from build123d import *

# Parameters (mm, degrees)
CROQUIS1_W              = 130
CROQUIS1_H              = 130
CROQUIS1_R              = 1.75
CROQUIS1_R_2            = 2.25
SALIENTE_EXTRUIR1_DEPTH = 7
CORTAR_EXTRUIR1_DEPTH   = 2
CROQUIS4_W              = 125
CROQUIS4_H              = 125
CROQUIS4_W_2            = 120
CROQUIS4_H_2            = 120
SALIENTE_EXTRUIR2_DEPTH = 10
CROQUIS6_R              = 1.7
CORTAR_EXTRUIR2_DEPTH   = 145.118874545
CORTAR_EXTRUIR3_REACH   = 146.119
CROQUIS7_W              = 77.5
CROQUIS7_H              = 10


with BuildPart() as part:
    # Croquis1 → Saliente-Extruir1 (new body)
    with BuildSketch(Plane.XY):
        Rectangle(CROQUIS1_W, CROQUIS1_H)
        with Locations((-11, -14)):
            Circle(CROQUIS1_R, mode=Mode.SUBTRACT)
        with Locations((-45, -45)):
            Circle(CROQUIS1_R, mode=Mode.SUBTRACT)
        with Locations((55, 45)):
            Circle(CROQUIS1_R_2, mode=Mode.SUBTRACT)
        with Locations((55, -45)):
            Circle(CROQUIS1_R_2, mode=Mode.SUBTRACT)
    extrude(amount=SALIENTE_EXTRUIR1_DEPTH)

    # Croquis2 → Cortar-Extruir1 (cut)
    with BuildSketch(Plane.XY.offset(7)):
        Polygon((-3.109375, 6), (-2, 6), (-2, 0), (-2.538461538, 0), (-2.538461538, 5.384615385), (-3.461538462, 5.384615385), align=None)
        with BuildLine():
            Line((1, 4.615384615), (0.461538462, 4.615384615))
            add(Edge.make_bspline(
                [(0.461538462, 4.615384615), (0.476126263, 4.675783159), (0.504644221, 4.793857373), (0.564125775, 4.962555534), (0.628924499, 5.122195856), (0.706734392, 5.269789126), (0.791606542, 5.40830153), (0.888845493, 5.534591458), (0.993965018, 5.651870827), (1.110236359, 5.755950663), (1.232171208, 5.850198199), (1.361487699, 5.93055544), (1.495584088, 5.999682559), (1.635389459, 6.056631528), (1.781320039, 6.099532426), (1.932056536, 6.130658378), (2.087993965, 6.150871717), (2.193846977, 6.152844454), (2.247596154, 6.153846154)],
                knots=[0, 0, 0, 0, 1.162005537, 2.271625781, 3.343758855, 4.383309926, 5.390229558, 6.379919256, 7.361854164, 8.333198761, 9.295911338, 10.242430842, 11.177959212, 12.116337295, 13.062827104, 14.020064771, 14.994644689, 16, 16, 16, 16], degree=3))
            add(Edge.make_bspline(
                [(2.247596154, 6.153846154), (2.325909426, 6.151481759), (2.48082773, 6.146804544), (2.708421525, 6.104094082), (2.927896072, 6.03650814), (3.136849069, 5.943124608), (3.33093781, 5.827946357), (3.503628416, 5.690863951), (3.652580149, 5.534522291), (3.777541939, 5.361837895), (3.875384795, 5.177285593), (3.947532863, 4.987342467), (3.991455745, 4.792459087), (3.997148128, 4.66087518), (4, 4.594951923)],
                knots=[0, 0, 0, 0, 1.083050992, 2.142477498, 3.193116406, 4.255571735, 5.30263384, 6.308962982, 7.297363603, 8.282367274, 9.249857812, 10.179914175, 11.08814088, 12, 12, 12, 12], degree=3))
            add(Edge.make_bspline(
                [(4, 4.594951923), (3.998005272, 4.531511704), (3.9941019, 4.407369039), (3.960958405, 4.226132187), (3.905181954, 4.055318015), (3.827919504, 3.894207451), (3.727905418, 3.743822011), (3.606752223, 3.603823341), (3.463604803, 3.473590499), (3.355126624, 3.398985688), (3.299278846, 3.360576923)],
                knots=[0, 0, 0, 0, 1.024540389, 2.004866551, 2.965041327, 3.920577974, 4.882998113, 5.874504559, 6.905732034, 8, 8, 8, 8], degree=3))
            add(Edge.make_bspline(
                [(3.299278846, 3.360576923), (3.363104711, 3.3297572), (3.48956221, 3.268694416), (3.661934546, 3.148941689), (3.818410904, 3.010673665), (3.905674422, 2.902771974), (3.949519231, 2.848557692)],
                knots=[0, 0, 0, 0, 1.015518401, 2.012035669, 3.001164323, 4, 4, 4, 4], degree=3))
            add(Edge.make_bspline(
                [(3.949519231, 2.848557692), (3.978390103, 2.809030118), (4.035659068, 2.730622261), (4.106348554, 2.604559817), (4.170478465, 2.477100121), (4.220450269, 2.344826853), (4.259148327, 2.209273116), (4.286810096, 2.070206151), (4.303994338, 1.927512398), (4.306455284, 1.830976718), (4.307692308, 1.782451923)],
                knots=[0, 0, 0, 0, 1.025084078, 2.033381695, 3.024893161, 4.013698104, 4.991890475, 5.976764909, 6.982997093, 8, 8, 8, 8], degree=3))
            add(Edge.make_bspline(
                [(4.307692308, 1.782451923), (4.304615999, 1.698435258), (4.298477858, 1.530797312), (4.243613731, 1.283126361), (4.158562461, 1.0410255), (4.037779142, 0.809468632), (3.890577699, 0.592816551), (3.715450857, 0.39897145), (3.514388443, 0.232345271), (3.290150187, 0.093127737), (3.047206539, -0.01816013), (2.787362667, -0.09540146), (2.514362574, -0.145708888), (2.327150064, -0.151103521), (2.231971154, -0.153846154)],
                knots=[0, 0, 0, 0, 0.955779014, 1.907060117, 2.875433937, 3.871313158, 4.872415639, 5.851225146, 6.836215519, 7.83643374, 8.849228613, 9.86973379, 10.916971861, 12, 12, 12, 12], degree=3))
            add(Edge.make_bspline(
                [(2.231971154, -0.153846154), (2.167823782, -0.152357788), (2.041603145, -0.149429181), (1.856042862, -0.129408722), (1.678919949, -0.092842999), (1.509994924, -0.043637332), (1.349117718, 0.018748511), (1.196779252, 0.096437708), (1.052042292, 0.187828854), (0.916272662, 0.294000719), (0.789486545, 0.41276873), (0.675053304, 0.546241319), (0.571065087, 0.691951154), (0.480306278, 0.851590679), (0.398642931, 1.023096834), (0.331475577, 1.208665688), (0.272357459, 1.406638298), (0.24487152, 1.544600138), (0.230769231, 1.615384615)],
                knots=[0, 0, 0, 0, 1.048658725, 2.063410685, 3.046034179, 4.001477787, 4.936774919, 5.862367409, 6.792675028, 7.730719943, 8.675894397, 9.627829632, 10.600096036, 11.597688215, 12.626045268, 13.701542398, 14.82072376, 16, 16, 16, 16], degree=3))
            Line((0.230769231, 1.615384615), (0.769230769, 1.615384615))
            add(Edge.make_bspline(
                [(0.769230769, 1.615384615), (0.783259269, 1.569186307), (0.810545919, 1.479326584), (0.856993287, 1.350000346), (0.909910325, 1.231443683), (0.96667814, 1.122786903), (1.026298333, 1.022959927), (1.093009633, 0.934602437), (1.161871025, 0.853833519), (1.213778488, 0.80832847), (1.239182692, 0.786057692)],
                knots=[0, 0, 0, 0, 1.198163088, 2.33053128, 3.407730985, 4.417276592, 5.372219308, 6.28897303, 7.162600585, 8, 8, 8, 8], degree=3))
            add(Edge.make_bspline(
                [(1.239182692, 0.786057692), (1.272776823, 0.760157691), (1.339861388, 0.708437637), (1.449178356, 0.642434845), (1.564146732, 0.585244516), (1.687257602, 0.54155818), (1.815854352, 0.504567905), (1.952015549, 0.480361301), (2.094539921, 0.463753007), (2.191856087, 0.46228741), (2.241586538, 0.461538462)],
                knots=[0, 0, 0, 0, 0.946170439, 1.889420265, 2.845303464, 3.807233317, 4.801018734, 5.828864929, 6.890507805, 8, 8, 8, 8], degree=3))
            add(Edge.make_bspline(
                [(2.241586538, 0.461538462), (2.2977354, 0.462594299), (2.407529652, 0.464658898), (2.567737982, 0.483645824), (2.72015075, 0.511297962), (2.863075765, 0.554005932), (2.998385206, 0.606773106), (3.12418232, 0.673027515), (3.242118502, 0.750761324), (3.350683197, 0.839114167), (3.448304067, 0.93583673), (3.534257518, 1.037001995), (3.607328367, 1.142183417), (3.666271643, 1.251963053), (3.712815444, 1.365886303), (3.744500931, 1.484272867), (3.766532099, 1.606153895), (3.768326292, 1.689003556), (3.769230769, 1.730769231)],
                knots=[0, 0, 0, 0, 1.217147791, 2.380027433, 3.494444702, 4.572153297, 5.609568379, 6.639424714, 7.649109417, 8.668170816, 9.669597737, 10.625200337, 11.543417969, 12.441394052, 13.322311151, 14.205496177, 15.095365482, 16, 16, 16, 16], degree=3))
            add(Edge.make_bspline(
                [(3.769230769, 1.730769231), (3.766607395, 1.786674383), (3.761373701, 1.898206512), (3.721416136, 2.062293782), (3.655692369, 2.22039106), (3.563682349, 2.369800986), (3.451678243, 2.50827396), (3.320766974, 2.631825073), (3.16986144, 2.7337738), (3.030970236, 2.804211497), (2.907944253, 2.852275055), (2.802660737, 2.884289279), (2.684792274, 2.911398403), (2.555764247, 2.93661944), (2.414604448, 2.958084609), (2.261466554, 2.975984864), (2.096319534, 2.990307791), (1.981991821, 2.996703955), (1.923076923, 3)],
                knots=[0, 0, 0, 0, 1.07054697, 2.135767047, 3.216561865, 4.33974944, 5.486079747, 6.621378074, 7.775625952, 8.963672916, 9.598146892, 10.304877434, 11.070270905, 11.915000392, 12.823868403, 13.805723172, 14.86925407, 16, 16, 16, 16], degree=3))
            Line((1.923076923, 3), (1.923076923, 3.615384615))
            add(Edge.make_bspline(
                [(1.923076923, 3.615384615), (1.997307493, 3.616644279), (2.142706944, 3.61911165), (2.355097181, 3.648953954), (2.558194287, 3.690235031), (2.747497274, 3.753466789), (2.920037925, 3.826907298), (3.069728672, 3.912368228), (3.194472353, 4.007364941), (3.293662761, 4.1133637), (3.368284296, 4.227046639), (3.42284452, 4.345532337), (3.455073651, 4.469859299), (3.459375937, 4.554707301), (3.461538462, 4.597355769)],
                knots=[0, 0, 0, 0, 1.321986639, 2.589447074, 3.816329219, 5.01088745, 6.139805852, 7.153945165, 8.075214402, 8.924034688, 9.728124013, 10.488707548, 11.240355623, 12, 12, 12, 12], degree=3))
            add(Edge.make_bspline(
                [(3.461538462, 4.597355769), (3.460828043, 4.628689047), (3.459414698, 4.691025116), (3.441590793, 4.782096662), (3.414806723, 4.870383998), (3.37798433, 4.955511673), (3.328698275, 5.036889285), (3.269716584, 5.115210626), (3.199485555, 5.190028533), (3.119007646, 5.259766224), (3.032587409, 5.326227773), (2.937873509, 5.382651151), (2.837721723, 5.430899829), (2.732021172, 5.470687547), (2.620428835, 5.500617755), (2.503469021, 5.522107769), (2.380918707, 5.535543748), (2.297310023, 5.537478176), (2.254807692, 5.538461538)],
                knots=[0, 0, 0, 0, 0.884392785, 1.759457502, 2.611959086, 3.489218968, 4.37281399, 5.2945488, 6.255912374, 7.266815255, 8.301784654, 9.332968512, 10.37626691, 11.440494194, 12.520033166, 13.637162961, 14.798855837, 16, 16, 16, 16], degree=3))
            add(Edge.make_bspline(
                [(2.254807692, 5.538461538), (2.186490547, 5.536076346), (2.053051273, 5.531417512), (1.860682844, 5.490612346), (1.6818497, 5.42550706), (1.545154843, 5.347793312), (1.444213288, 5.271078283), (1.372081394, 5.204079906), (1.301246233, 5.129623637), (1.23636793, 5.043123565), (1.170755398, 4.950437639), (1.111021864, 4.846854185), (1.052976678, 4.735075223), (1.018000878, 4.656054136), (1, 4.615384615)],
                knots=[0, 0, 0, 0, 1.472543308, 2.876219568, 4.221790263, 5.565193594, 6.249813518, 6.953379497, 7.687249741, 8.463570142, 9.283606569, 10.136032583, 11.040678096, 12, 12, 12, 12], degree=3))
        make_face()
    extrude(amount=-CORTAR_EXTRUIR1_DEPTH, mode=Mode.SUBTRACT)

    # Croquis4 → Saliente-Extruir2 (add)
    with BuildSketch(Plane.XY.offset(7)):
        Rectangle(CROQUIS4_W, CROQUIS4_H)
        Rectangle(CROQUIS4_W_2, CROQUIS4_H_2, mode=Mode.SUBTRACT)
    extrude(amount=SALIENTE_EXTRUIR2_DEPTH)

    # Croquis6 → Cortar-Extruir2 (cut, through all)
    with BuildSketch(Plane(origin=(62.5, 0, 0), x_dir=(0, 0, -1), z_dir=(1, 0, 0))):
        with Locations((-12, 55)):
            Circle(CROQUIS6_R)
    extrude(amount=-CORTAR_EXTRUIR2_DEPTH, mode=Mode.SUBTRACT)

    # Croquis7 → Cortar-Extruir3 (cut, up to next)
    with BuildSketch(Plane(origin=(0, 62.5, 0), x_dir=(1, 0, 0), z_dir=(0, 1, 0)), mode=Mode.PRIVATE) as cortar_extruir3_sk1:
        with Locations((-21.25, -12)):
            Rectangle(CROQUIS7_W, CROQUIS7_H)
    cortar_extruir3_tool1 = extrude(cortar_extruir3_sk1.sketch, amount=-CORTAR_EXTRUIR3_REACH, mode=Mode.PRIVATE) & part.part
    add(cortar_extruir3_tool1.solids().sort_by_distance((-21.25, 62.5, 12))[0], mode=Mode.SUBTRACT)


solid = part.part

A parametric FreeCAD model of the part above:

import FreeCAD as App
import Part
import Sketcher
from FreeCAD import Vector
Q = App.Units.Quantity

doc = App.newDocument("Part")
body = doc.addObject("PartDesign::Body", "Body")

# Sketch on XY plane
sketch1 = body.newObject("Sketcher::SketchObject", "Sketch")
sketch1.AttachmentSupport = (doc.getObject("XY_Plane"), [""])
sketch1.MapMode = "FlatFace"
sketch1.addGeometry([
    Part.LineSegment(Vector(-65, 65, 0), Vector(-65, -65, 0)),  # 0
    Part.LineSegment(Vector(-65, -65, 0), Vector(65, -65, 0)),  # 1
    Part.LineSegment(Vector(65, -65, 0), Vector(65, 65, 0)),  # 2
    Part.LineSegment(Vector(65, 65, 0), Vector(-65, 65, 0)),  # 3
    Part.Circle(Vector(-45, -45, 0), Vector(0, 0, 1), 1.8),  # 4
    Part.Circle(Vector(-11, -14, 0), Vector(0, 0, 1), 1.8),  # 5
    Part.Circle(Vector(55, -45, 0), Vector(0, 0, 1), 2.2),  # 6
    Part.Circle(Vector(55, 45, 0), Vector(0, 0, 1), 2.2),  # 7
], False)
sketch1.addConstraint([
    Sketcher.Constraint("Coincident", 0, 2, 1, 1),
    Sketcher.Constraint("Coincident", 1, 2, 2, 1),
    Sketcher.Constraint("Coincident", 2, 2, 3, 1),
    Sketcher.Constraint("Coincident", 3, 2, 0, 1),
    Sketcher.Constraint("Vertical", 0),
    Sketcher.Constraint("Horizontal", 1),
    Sketcher.Constraint("Vertical", 2),
    Sketcher.Constraint("Horizontal", 3),
    Sketcher.Constraint("Equal", 4, 5),
    Sketcher.Constraint("Equal", 6, 7),
    Sketcher.Constraint("Symmetric", 0, 2, 2, 2, -1, 1),
    Sketcher.Constraint("Symmetric", 6, 3, 7, 3, -1),
    Sketcher.Constraint("Horizontal", 4, 3, 6, 3),
    Sketcher.Constraint("Equal", 3, 0),
    Sketcher.Constraint("Diameter", 4, Q("3.5 mm")),
    Sketcher.Constraint("Diameter", 6, Q("4.5 mm")),
    Sketcher.Constraint("DistanceX", 1, 1, 1, 2, Q("130 mm")),
    Sketcher.Constraint("DistanceX", 4, 3, -1, 1, Q("45 mm")),
    Sketcher.Constraint("DistanceY", 4, 3, -1, 1, Q("45 mm")),
    Sketcher.Constraint("DistanceX", 5, 3, -1, 1, Q("11 mm")),
    Sketcher.Constraint("DistanceY", 5, 3, -1, 1, Q("14 mm")),
    Sketcher.Constraint("DistanceX", -1, 1, 6, 3, Q("55 mm")),
])
pad1 = body.newObject("PartDesign::Pad", "Pad")
pad1.Profile = sketch1
pad1.Length = 7

# Sketch on XY plane
sketch2 = body.newObject("Sketcher::SketchObject", "Sketch001")
sketch2.AttachmentSupport = (doc.getObject("XY_Plane"), [""])
sketch2.MapMode = "FlatFace"
sketch2.AttachmentOffset = App.Placement(Vector(0, 0, 7), App.Rotation())
sketch2.addGeometry([
    Part.LineSegment(Vector(-2, 6, 0), Vector(-3.109375, 6, 0)),  # 0
    Part.LineSegment(Vector(-3.109375, 6, 0), Vector(-3.461538, 5.384615, 0)),  # 1
    Part.LineSegment(Vector(-3.461538, 5.384615, 0), Vector(-2.538462, 5.384615, 0)),  # 2
    Part.LineSegment(Vector(-2.538462, 5.384615, 0), Vector(-2.538462, 0, 0)),  # 3
    Part.LineSegment(Vector(-2.538462, 0, 0), Vector(-2, 0, 0)),  # 4
    Part.LineSegment(Vector(-2, 0, 0), Vector(-2, 6, 0)),  # 5
    Part.LineSegment(Vector(0.461538, 4.615385, 0), Vector(1, 4.615385, 0)),  # 6
    Part.BSplineCurve([Vector(2.254808, 5.538462, 0), Vector(2.186491, 5.536076, 0), Vector(2.053051, 5.531418, 0), Vector(1.860683, 5.490612, 0), Vector(1.68185, 5.425507, 0), Vector(1.545155, 5.347793, 0), Vector(1.444213, 5.271078, 0), Vector(1.372081, 5.20408, 0), Vector(1.301246, 5.129624, 0), Vector(1.236368, 5.043124, 0), Vector(1.170755, 4.950438, 0), Vector(1.111022, 4.846854, 0), Vector(1.052977, 4.735075, 0), Vector(1.018001, 4.656054, 0), Vector(1, 4.615385, 0)], [4, 1, 1, 1, 1, 1, 1, 1, 1, 1, 1, 1, 4], [0, 1.472543308, 2.876219568, 4.221790263, 5.565193594, 6.249813518, 6.953379497, 7.687249741, 8.463570142, 9.283606569, 10.136032583, 11.040678096, 12], False, 3, [1, 1, 1, 1, 1, 1, 1, 1, 1, 1, 1, 1, 1, 1, 1], False),  # 7
    Part.BSplineCurve([Vector(3.461538, 4.597356, 0), Vector(3.460828, 4.628689, 0), Vector(3.459415, 4.691025, 0), Vector(3.441591, 4.782097, 0), Vector(3.414807, 4.870384, 0), Vector(3.377984, 4.955512, 0), Vector(3.328698, 5.036889, 0), Vector(3.269717, 5.115211, 0), Vector(3.199486, 5.190029, 0), Vector(3.119008, 5.259766, 0), Vector(3.032587, 5.326228, 0), Vector(2.937874, 5.382651, 0), Vector(2.837722, 5.4309, 0), Vector(2.732021, 5.470688, 0), Vector(2.620429, 5.500618, 0), Vector(2.503469, 5.522108, 0), Vector(2.380919, 5.535544, 0), Vector(2.29731, 5.537478, 0), Vector(2.254808, 5.538462, 0)], [4, 1, 1, 1, 1, 1, 1, 1, 1, 1, 1, 1, 1, 1, 1, 1, 4], [0, 0.884392785, 1.759457502, 2.611959086, 3.489218968, 4.37281399, 5.2945488, 6.255912374, 7.266815255, 8.301784654, 9.332968512, 10.37626691, 11.440494194, 12.520033166, 13.637162961, 14.798855837, 16], False, 3, [1, 1, 1, 1, 1, 1, 1, 1, 1, 1, 1, 1, 1, 1, 1, 1, 1, 1, 1], False),  # 8
    Part.BSplineCurve([Vector(1.923077, 3.615385, 0), Vector(1.997307, 3.616644, 0), Vector(2.142707, 3.619112, 0), Vector(2.355097, 3.648954, 0), Vector(2.558194, 3.690235, 0), Vector(2.747497, 3.753467, 0), Vector(2.920038, 3.826907, 0), Vector(3.069729, 3.912368, 0), Vector(3.194472, 4.007365, 0), Vector(3.293663, 4.113364, 0), Vector(3.368284, 4.227047, 0), Vector(3.422845, 4.345532, 0), Vector(3.455074, 4.469859, 0), Vector(3.459376, 4.554707, 0), Vector(3.461538, 4.597356, 0)], [4, 1, 1, 1, 1, 1, 1, 1, 1, 1, 1, 1, 4], [0, 1.321986639, 2.589447074, 3.816329219, 5.01088745, 6.139805852, 7.153945165, 8.075214402, 8.924034688, 9.728124013, 10.488707548, 11.240355623, 12], False, 3, [1, 1, 1, 1, 1, 1, 1, 1, 1, 1, 1, 1, 1, 1, 1], False),  # 9
    Part.LineSegment(Vector(1.923077, 3.615385, 0), Vector(1.923077, 3, 0)),  # 10
    Part.BSplineCurve([Vector(3.769231, 1.730769, 0), Vector(3.766607, 1.786674, 0), Vector(3.761374, 1.898207, 0), Vector(3.721416, 2.062294, 0), Vector(3.655692, 2.220391, 0), Vector(3.563682, 2.369801, 0), Vector(3.451678, 2.508274, 0), Vector(3.320767, 2.631825, 0), Vector(3.169861, 2.733774, 0), Vector(3.03097, 2.804211, 0), Vector(2.907944, 2.852275, 0), Vector(2.802661, 2.884289, 0), Vector(2.684792, 2.911398, 0), Vector(2.555764, 2.936619, 0), Vector(2.414604, 2.958085, 0), Vector(2.261467, 2.975985, 0), Vector(2.09632, 2.990308, 0), Vector(1.981992, 2.996704, 0), Vector(1.923077, 3, 0)], [4, 1, 1, 1, 1, 1, 1, 1, 1, 1, 1, 1, 1, 1, 1, 1, 4], [0, 1.07054697, 2.135767047, 3.216561865, 4.33974944, 5.486079747, 6.621378074, 7.775625952, 8.963672916, 9.598146892, 10.304877434, 11.070270905, 11.915000392, 12.823868403, 13.805723172, 14.86925407, 16], False, 3, [1, 1, 1, 1, 1, 1, 1, 1, 1, 1, 1, 1, 1, 1, 1, 1, 1, 1, 1], False),  # 11
    Part.BSplineCurve([Vector(2.241587, 0.461538, 0), Vector(2.297735, 0.462594, 0), Vector(2.40753, 0.464659, 0), Vector(2.567738, 0.483646, 0), Vector(2.720151, 0.511298, 0), Vector(2.863076, 0.554006, 0), Vector(2.998385, 0.606773, 0), Vector(3.124182, 0.673028, 0), Vector(3.242119, 0.750761, 0), Vector(3.350683, 0.839114, 0), Vector(3.448304, 0.935837, 0), Vector(3.534258, 1.037002, 0), Vector(3.607328, 1.142183, 0), Vector(3.666272, 1.251963, 0), Vector(3.712815, 1.365886, 0), Vector(3.744501, 1.484273, 0), Vector(3.766532, 1.606154, 0), Vector(3.768326, 1.689004, 0), Vector(3.769231, 1.730769, 0)], [4, 1, 1, 1, 1, 1, 1, 1, 1, 1, 1, 1, 1, 1, 1, 1, 4], [0, 1.217147791, 2.380027433, 3.494444702, 4.572153297, 5.609568379, 6.639424714, 7.649109417, 8.668170816, 9.669597737, 10.625200337, 11.543417969, 12.441394052, 13.322311151, 14.205496177, 15.095365482, 16], False, 3, [1, 1, 1, 1, 1, 1, 1, 1, 1, 1, 1, 1, 1, 1, 1, 1, 1, 1, 1], False),  # 12
    Part.BSplineCurve([Vector(1.239183, 0.786058, 0), Vector(1.272777, 0.760158, 0), Vector(1.339861, 0.708438, 0), Vector(1.449178, 0.642435, 0), Vector(1.564147, 0.585245, 0), Vector(1.687258, 0.541558, 0), Vector(1.815854, 0.504568, 0), Vector(1.952016, 0.480361, 0), Vector(2.09454, 0.463753, 0), Vector(2.191856, 0.462287, 0), Vector(2.241587, 0.461538, 0)], [4, 1, 1, 1, 1, 1, 1, 1, 4], [0, 0.946170439, 1.889420265, 2.845303464, 3.807233317, 4.801018734, 5.828864929, 6.890507805, 8], False, 3, [1, 1, 1, 1, 1, 1, 1, 1, 1, 1, 1], False),  # 13
    Part.BSplineCurve([Vector(0.769231, 1.615385, 0), Vector(0.783259, 1.569186, 0), Vector(0.810546, 1.479327, 0), Vector(0.856993, 1.35, 0), Vector(0.90991, 1.231444, 0), Vector(0.966678, 1.122787, 0), Vector(1.026298, 1.02296, 0), Vector(1.09301, 0.934602, 0), Vector(1.161871, 0.853834, 0), Vector(1.213778, 0.808328, 0), Vector(1.239183, 0.786058, 0)], [4, 1, 1, 1, 1, 1, 1, 1, 4], [0, 1.198163088, 2.33053128, 3.407730985, 4.417276592, 5.372219308, 6.28897303, 7.162600585, 8], False, 3, [1, 1, 1, 1, 1, 1, 1, 1, 1, 1, 1], False),  # 14
    Part.LineSegment(Vector(0.769231, 1.615385, 0), Vector(0.230769, 1.615385, 0)),  # 15
    Part.BSplineCurve([Vector(2.231971, -0.153846, 0), Vector(2.167824, -0.152358, 0), Vector(2.041603, -0.149429, 0), Vector(1.856043, -0.129409, 0), Vector(1.67892, -0.092843, 0), Vector(1.509995, -0.043637, 0), Vector(1.349118, 0.018749, 0), Vector(1.196779, 0.096438, 0), Vector(1.052042, 0.187829, 0), Vector(0.916273, 0.294001, 0), Vector(0.789487, 0.412769, 0), Vector(0.675053, 0.546241, 0), Vector(0.571065, 0.691951, 0), Vector(0.480306, 0.851591, 0), Vector(0.398643, 1.023097, 0), Vector(0.331476, 1.208666, 0), Vector(0.272357, 1.406638, 0), Vector(0.244872, 1.5446, 0), Vector(0.230769, 1.615385, 0)], [4, 1, 1, 1, 1, 1, 1, 1, 1, 1, 1, 1, 1, 1, 1, 1, 4], [0, 1.048658725, 2.063410685, 3.046034179, 4.001477787, 4.936774919, 5.862367409, 6.792675028, 7.730719943, 8.675894397, 9.627829632, 10.600096036, 11.597688215, 12.626045268, 13.701542398, 14.82072376, 16], False, 3, [1, 1, 1, 1, 1, 1, 1, 1, 1, 1, 1, 1, 1, 1, 1, 1, 1, 1, 1], False),  # 16
    Part.BSplineCurve([Vector(4.307692, 1.782452, 0), Vector(4.304616, 1.698435, 0), Vector(4.298478, 1.530797, 0), Vector(4.243614, 1.283126, 0), Vector(4.158562, 1.041025, 0), Vector(4.037779, 0.809469, 0), Vector(3.890578, 0.592817, 0), Vector(3.715451, 0.398971, 0), Vector(3.514388, 0.232345, 0), Vector(3.29015, 0.093128, 0), Vector(3.047207, -0.01816, 0), Vector(2.787363, -0.095401, 0), Vector(2.514363, -0.145709, 0), Vector(2.32715, -0.151104, 0), Vector(2.231971, -0.153846, 0)], [4, 1, 1, 1, 1, 1, 1, 1, 1, 1, 1, 1, 4], [0, 0.955779014, 1.907060117, 2.875433937, 3.871313158, 4.872415639, 5.851225146, 6.836215519, 7.83643374, 8.849228613, 9.86973379, 10.916971861, 12], False, 3, [1, 1, 1, 1, 1, 1, 1, 1, 1, 1, 1, 1, 1, 1, 1], False),  # 17
    Part.BSplineCurve([Vector(3.949519, 2.848558, 0), Vector(3.97839, 2.80903, 0), Vector(4.035659, 2.730622, 0), Vector(4.106349, 2.60456, 0), Vector(4.170478, 2.4771, 0), Vector(4.22045, 2.344827, 0), Vector(4.259148, 2.209273, 0), Vector(4.28681, 2.070206, 0), Vector(4.303994, 1.927512, 0), Vector(4.306455, 1.830977, 0), Vector(4.307692, 1.782452, 0)], [4, 1, 1, 1, 1, 1, 1, 1, 4], [0, 1.025084078, 2.033381695, 3.024893161, 4.013698104, 4.991890475, 5.976764909, 6.982997093, 8], False, 3, [1, 1, 1, 1, 1, 1, 1, 1, 1, 1, 1], False),  # 18
    Part.BSplineCurve([Vector(3.299279, 3.360577, 0), Vector(3.363105, 3.329757, 0), Vector(3.489562, 3.268694, 0), Vector(3.661935, 3.148942, 0), Vector(3.818411, 3.010674, 0), Vector(3.905674, 2.902772, 0), Vector(3.949519, 2.848558, 0)], [4, 1, 1, 1, 4], [0, 1.015518401, 2.012035669, 3.001164323, 4], False, 3, [1, 1, 1, 1, 1, 1, 1], False),  # 19
    Part.BSplineCurve([Vector(4, 4.594952, 0), Vector(3.998005, 4.531512, 0), Vector(3.994102, 4.407369, 0), Vector(3.960958, 4.226132, 0), Vector(3.905182, 4.055318, 0), Vector(3.82792, 3.894207, 0), Vector(3.727905, 3.743822, 0), Vector(3.606752, 3.603823, 0), Vector(3.463605, 3.47359, 0), Vector(3.355127, 3.398986, 0), Vector(3.299279, 3.360577, 0)], [4, 1, 1, 1, 1, 1, 1, 1, 4], [0, 1.024540389, 2.004866551, 2.965041327, 3.920577974, 4.882998113, 5.874504559, 6.905732034, 8], False, 3, [1, 1, 1, 1, 1, 1, 1, 1, 1, 1, 1], False),  # 20
    Part.BSplineCurve([Vector(2.247596, 6.153846, 0), Vector(2.325909, 6.151482, 0), Vector(2.480828, 6.146805, 0), Vector(2.708422, 6.104094, 0), Vector(2.927896, 6.036508, 0), Vector(3.136849, 5.943125, 0), Vector(3.330938, 5.827946, 0), Vector(3.503628, 5.690864, 0), Vector(3.65258, 5.534522, 0), Vector(3.777542, 5.361838, 0), Vector(3.875385, 5.177286, 0), Vector(3.947533, 4.987342, 0), Vector(3.991456, 4.792459, 0), Vector(3.997148, 4.660875, 0), Vector(4, 4.594952, 0)], [4, 1, 1, 1, 1, 1, 1, 1, 1, 1, 1, 1, 4], [0, 1.083050992, 2.142477498, 3.193116406, 4.255571735, 5.30263384, 6.308962982, 7.297363603, 8.282367274, 9.249857812, 10.179914175, 11.08814088, 12], False, 3, [1, 1, 1, 1, 1, 1, 1, 1, 1, 1, 1, 1, 1, 1, 1], False),  # 21
    Part.BSplineCurve([Vector(0.461538, 4.615385, 0), Vector(0.476126, 4.675783, 0), Vector(0.504644, 4.793857, 0), Vector(0.564126, 4.962556, 0), Vector(0.628924, 5.122196, 0), Vector(0.706734, 5.269789, 0), Vector(0.791607, 5.408302, 0), Vector(0.888845, 5.534591, 0), Vector(0.993965, 5.651871, 0), Vector(1.110236, 5.755951, 0), Vector(1.232171, 5.850198, 0), Vector(1.361488, 5.930555, 0), Vector(1.495584, 5.999683, 0), Vector(1.635389, 6.056632, 0), Vector(1.78132, 6.099532, 0), Vector(1.932057, 6.130658, 0), Vector(2.087994, 6.150872, 0), Vector(2.193847, 6.152844, 0), Vector(2.247596, 6.153846, 0)], [4, 1, 1, 1, 1, 1, 1, 1, 1, 1, 1, 1, 1, 1, 1, 1, 4], [0, 1.162005537, 2.271625781, 3.343758855, 4.383309926, 5.390229558, 6.379919256, 7.361854164, 8.333198761, 9.295911338, 10.242430842, 11.177959212, 12.116337295, 13.062827104, 14.020064771, 14.994644689, 16], False, 3, [1, 1, 1, 1, 1, 1, 1, 1, 1, 1, 1, 1, 1, 1, 1, 1, 1, 1, 1], False),  # 22
], False)
sketch2.addConstraint([
    Sketcher.Constraint("Block", 7),
    Sketcher.Constraint("Block", 8),
    Sketcher.Constraint("Block", 9),
    Sketcher.Constraint("Block", 11),
    Sketcher.Constraint("Block", 12),
    Sketcher.Constraint("Block", 13),
    Sketcher.Constraint("Block", 14),
    Sketcher.Constraint("Block", 16),
    Sketcher.Constraint("Block", 17),
    Sketcher.Constraint("Block", 18),
    Sketcher.Constraint("Block", 19),
    Sketcher.Constraint("Block", 20),
    Sketcher.Constraint("Block", 21),
    Sketcher.Constraint("Block", 22),
    Sketcher.Constraint("Coincident", 0, 2, 1, 1),
    Sketcher.Constraint("Coincident", 1, 2, 2, 1),
    Sketcher.Constraint("Coincident", 2, 2, 3, 1),
    Sketcher.Constraint("Coincident", 3, 2, 4, 1),
    Sketcher.Constraint("Coincident", 4, 2, 5, 1),
    Sketcher.Constraint("Coincident", 5, 2, 0, 1),
    Sketcher.Constraint("Coincident", 6, 2, 7, 2),
    Sketcher.Constraint("Coincident", 9, 1, 10, 1),
    Sketcher.Constraint("Coincident", 10, 2, 11, 2),
    Sketcher.Constraint("Coincident", 14, 1, 15, 1),
    Sketcher.Constraint("Coincident", 15, 2, 16, 2),
    Sketcher.Constraint("Coincident", 22, 1, 6, 1),
    Sketcher.Constraint("Horizontal", 0),
    Sketcher.Constraint("Horizontal", 2),
    Sketcher.Constraint("Vertical", 3),
    Sketcher.Constraint("Horizontal", 4),
    Sketcher.Constraint("Vertical", 5),
    Sketcher.Constraint("PointOnObject", 3, 2, -1),
    Sketcher.Constraint("DistanceY", 5, 1, 5, 2, Q("6 mm")),
    Sketcher.Constraint("DistanceX", 4, 2, -1, 1, Q("2 mm")),
    Sketcher.Constraint("DistanceX", 4, 1, 4, 2, Q("0.538462 mm")),
    Sketcher.Constraint("DistanceX", 0, 2, 0, 1, Q("1.109375 mm")),
    Sketcher.Constraint("DistanceX", 2, 1, 2, 2, Q("0.923077 mm")),
    Sketcher.Constraint("DistanceY", 3, 2, 3, 1, Q("5.384615 mm")),
])
pocket1 = body.newObject("PartDesign::Pocket", "Pocket")
pocket1.Profile = sketch2
pocket1.Length = 2

# Sketch on XY plane
sketch3 = body.newObject("Sketcher::SketchObject", "Sketch002")
sketch3.AttachmentSupport = (doc.getObject("XY_Plane"), [""])
sketch3.MapMode = "FlatFace"
sketch3.AttachmentOffset = App.Placement(Vector(0, 0, 7), App.Rotation())
sketch3.addGeometry([
    Part.LineSegment(Vector(-62, 62, 0), Vector(-62, -62, 0)),  # 0
    Part.LineSegment(Vector(-62, -62, 0), Vector(62, -62, 0)),  # 1
    Part.LineSegment(Vector(62, -62, 0), Vector(62, 62, 0)),  # 2
    Part.LineSegment(Vector(62, 62, 0), Vector(-62, 62, 0)),  # 3
    Part.LineSegment(Vector(60, -60, 0), Vector(-60, -60, 0)),  # 4
    Part.LineSegment(Vector(-60, -60, 0), Vector(-60, 60, 0)),  # 5
    Part.LineSegment(Vector(-60, 60, 0), Vector(60, 60, 0)),  # 6
    Part.LineSegment(Vector(60, 60, 0), Vector(60, -60, 0)),  # 7
], False)
sketch3.addConstraint([
    Sketcher.Constraint("Coincident", 0, 2, 1, 1),
    Sketcher.Constraint("Coincident", 1, 2, 2, 1),
    Sketcher.Constraint("Coincident", 2, 2, 3, 1),
    Sketcher.Constraint("Coincident", 3, 2, 0, 1),
    Sketcher.Constraint("Coincident", 4, 2, 5, 1),
    Sketcher.Constraint("Coincident", 5, 2, 6, 1),
    Sketcher.Constraint("Coincident", 6, 2, 7, 1),
    Sketcher.Constraint("Coincident", 7, 2, 4, 1),
    Sketcher.Constraint("Vertical", 0),
    Sketcher.Constraint("Horizontal", 1),
    Sketcher.Constraint("Vertical", 2),
    Sketcher.Constraint("Horizontal", 3),
    Sketcher.Constraint("Horizontal", 4),
    Sketcher.Constraint("Vertical", 5),
    Sketcher.Constraint("Horizontal", 6),
    Sketcher.Constraint("Vertical", 7),
    Sketcher.Constraint("Symmetric", 0, 2, 2, 2, -1, 1),
    Sketcher.Constraint("Symmetric", 4, 2, 6, 2, -1, 1),
    Sketcher.Constraint("Equal", 3, 0),
    Sketcher.Constraint("Equal", 6, 5),
    Sketcher.Constraint("DistanceX", 1, 1, 1, 2, Q("125 mm")),
    Sketcher.Constraint("DistanceX", 4, 2, 4, 1, Q("120 mm")),
])
pad2 = body.newObject("PartDesign::Pad", "Pad001")
pad2.Profile = sketch3
pad2.Length = 10

# Sketch on YZ plane
sketch4 = body.newObject("Sketcher::SketchObject", "Sketch003")
sketch4.AttachmentSupport = (doc.getObject("YZ_Plane"), [""])
sketch4.MapMode = "FlatFace"
sketch4.AttachmentOffset = App.Placement(Vector(0, 0, 62.5), App.Rotation())
sketch4.addGeometry(Part.Circle(Vector(55, 12, 0), Vector(0, 0, 1), 1.7), False)
sketch4.addConstraint([
    Sketcher.Constraint("Diameter", 0, Q("3.4 mm")),
    Sketcher.Constraint("DistanceX", -1, 1, 0, 3, Q("55 mm")),
    Sketcher.Constraint("DistanceY", -1, 1, 0, 3, Q("12 mm")),
])
pocket2 = body.newObject("PartDesign::Pocket", "Pocket001")
pocket2.Profile = sketch4
pocket2.Type = "ThroughAll"

# Sketch on XZ plane
sketch5 = body.newObject("Sketcher::SketchObject", "Sketch004")
sketch5.AttachmentSupport = (doc.getObject("XZ_Plane"), [""])
sketch5.MapMode = "FlatFace"
sketch5.AttachmentOffset = App.Placement(Vector(0, 0, -62.5), App.Rotation())
sketch5.addGeometry([
    Part.LineSegment(Vector(-60, 7, 0), Vector(-60, 17, 0)),
    Part.LineSegment(Vector(-60, 17, 0), Vector(18, 17, 0)),
    Part.LineSegment(Vector(18, 17, 0), Vector(18, 7, 0)),
    Part.LineSegment(Vector(18, 7, 0), Vector(-60, 7, 0)),
], False)
sketch5.addConstraint([
    Sketcher.Constraint("Coincident", 0, 2, 1, 1),
    Sketcher.Constraint("Coincident", 1, 2, 2, 1),
    Sketcher.Constraint("Coincident", 2, 2, 3, 1),
    Sketcher.Constraint("Coincident", 3, 2, 0, 1),
    Sketcher.Constraint("Vertical", 0),
    Sketcher.Constraint("Horizontal", 1),
    Sketcher.Constraint("Vertical", 2),
    Sketcher.Constraint("Horizontal", 3),
    Sketcher.Constraint("DistanceY", 0, 1, 0, 2, Q("10 mm")),
    Sketcher.Constraint("DistanceX", 1, 1, 1, 2, Q("77.5 mm")),
    Sketcher.Constraint("DistanceX", 0, 2, -1, 1, Q("60 mm")),
    Sketcher.Constraint("DistanceY", -1, 1, 0, 2, Q("17 mm")),
])
pocket3 = body.newObject("PartDesign::Pocket", "Pocket002")
pocket3.Profile = sketch5
pocket3.Type = "UpToFirst"
pocket3.Reversed = True

doc.recompute()
